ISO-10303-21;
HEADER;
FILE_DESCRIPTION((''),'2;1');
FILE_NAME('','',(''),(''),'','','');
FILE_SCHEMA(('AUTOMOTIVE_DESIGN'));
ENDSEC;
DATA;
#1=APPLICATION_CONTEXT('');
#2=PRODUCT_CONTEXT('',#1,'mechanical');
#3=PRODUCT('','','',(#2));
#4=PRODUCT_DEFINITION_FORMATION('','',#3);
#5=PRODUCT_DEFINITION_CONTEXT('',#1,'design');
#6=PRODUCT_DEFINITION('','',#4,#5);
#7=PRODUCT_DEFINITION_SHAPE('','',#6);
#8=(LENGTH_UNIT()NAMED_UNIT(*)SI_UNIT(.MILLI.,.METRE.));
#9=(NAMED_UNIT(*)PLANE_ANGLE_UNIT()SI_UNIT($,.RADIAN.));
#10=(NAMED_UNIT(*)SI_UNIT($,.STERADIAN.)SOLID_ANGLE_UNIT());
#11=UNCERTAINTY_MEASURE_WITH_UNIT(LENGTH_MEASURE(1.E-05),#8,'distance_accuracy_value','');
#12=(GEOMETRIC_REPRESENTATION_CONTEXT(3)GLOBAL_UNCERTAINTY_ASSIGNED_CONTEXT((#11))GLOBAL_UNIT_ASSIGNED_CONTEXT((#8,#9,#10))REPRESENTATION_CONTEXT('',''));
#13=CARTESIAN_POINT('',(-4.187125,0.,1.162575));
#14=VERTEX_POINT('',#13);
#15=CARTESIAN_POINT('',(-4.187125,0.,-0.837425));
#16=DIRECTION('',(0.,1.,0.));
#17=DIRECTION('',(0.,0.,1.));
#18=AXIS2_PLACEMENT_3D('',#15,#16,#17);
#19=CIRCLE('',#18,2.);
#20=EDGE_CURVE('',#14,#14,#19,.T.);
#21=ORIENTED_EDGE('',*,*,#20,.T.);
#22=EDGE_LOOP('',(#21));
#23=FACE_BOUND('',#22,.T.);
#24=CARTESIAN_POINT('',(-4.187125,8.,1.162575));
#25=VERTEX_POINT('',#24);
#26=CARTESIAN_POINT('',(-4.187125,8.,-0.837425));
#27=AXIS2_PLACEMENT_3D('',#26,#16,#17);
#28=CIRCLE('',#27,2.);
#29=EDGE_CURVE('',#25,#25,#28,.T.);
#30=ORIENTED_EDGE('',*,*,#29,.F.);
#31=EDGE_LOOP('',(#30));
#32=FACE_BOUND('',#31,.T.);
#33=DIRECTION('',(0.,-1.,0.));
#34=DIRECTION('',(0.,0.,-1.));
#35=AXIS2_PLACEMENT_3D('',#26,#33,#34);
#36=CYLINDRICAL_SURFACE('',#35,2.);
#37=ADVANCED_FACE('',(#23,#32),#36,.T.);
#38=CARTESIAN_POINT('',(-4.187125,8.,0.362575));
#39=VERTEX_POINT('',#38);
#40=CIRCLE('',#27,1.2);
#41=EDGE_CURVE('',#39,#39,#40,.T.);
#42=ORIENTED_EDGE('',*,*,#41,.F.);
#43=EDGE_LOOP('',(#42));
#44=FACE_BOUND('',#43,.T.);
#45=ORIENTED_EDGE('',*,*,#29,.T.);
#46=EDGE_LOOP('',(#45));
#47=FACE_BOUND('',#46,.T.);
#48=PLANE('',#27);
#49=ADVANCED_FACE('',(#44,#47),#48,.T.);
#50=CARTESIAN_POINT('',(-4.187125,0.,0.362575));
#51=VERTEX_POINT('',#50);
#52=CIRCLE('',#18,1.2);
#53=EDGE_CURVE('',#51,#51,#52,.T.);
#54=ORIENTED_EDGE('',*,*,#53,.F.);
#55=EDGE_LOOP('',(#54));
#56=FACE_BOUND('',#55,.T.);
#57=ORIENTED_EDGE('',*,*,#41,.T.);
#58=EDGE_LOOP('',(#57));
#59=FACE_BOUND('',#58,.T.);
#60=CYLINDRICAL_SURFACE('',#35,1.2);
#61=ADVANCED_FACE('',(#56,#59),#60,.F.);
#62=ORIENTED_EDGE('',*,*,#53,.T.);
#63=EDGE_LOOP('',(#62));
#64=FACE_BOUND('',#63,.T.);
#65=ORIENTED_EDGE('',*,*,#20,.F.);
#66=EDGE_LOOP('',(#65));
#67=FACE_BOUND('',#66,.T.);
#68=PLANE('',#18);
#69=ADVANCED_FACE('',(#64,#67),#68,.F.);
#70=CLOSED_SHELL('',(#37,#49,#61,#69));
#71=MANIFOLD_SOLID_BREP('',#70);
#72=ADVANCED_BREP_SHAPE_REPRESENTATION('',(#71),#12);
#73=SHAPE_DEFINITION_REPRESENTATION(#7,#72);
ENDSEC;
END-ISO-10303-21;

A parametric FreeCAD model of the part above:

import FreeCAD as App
import Part
import Sketcher

V = App.Vector
Q = App.Units.Quantity

doc = App.newDocument("Part")
body = doc.addObject("PartDesign::Body", "Body")

# Sketch on XZ plane
sketch1 = body.newObject("Sketcher::SketchObject", "Sketch")
sketch1.AttachmentSupport = (doc.getObject("XZ_Plane"), [""])
sketch1.MapMode = "FlatFace"
sketch1.addGeometry(Part.Circle(V(-4.187125, -0.837425, 0), V(0, 0, 1), 2), False)
sketch1.addGeometry(Part.Circle(V(-4.187125, -0.837425, 0), V(0, 0, 1), 1.2), False)
sketch1.addConstraint(Sketcher.Constraint("Coincident", 1, 3, 0, 3))
sketch1.addConstraint(Sketcher.Constraint("Diameter", 0, Q("4 mm")))
sketch1.addConstraint(Sketcher.Constraint("Diameter", 1, Q("2.4 mm")))
sketch1.addConstraint(Sketcher.Constraint("DistanceX", 0, 3, -1, 1, Q("4.187125 mm")))
sketch1.addConstraint(Sketcher.Constraint("DistanceY", 0, 3, -1, 1, Q("0.837425 mm")))
pad1 = body.newObject("PartDesign::Pad", "Pad")
pad1.Profile = sketch1
pad1.Length = 8
pad1.Reversed = True

doc.recompute()
